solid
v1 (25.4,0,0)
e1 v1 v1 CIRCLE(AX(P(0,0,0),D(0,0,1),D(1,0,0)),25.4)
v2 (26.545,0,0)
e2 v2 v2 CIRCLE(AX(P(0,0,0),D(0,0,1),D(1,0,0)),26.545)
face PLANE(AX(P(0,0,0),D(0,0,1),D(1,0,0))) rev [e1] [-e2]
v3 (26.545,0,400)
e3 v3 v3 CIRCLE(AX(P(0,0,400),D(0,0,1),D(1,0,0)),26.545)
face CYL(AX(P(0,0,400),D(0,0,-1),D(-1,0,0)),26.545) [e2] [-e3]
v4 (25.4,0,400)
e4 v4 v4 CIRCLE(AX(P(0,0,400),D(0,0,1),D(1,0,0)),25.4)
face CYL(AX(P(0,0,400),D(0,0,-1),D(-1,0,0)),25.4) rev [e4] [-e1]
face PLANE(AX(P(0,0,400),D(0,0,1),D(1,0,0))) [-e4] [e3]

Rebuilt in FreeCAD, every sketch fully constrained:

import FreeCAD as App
import Part
import Sketcher

doc = App.newDocument("Part")
params = doc.addObject("Spreadsheet::Sheet", "Params")
for row, (alias, value) in enumerate([
    ("sketch1_diameter", "50.8 mm"),
    ("sketch1_diameter2", "53.09 mm"),
    ("pad1_length", "400 mm"),
], start=1):
    params.set(f"A{row}", alias)
    params.set(f"B{row}", "=" + value)
    params.setAlias(f"B{row}", alias)

body = doc.addObject("PartDesign::Body", "Body")

# Sketch on XY plane
sketch1 = doc.addObject("Sketcher::SketchObject", "Sketch")
body.addObject(sketch1)
sketch1.AttachmentSupport = (doc.XY_Plane, [""])
sketch1.MapMode = "FlatFace"
sketch1.addGeometry([
    Part.Circle(App.Vector(0, 0, 0), App.Vector(0, 0, 1), 27),
    Part.Circle(App.Vector(0, 0, 0), App.Vector(0, 0, 1), 25),
], False)
sketch1.addConstraint([
    Sketcher.Constraint("Coincident", 0, 3, -1, 1),
    Sketcher.Constraint("Coincident", 1, 3, -1, 1),
    Sketcher.Constraint("Diameter", 1, 50.8),
    Sketcher.Constraint("Diameter", 0, 53.09),
])
sketch1.setExpression("Constraints[2]", "Params.sketch1_diameter")
sketch1.setExpression("Constraints[3]", "Params.sketch1_diameter2")
pad1 = doc.addObject("PartDesign::Pad", "Pad")
body.addObject(pad1)
pad1.Profile = sketch1
pad1.setExpression("Length", "Params.pad1_length")

doc.recompute()
